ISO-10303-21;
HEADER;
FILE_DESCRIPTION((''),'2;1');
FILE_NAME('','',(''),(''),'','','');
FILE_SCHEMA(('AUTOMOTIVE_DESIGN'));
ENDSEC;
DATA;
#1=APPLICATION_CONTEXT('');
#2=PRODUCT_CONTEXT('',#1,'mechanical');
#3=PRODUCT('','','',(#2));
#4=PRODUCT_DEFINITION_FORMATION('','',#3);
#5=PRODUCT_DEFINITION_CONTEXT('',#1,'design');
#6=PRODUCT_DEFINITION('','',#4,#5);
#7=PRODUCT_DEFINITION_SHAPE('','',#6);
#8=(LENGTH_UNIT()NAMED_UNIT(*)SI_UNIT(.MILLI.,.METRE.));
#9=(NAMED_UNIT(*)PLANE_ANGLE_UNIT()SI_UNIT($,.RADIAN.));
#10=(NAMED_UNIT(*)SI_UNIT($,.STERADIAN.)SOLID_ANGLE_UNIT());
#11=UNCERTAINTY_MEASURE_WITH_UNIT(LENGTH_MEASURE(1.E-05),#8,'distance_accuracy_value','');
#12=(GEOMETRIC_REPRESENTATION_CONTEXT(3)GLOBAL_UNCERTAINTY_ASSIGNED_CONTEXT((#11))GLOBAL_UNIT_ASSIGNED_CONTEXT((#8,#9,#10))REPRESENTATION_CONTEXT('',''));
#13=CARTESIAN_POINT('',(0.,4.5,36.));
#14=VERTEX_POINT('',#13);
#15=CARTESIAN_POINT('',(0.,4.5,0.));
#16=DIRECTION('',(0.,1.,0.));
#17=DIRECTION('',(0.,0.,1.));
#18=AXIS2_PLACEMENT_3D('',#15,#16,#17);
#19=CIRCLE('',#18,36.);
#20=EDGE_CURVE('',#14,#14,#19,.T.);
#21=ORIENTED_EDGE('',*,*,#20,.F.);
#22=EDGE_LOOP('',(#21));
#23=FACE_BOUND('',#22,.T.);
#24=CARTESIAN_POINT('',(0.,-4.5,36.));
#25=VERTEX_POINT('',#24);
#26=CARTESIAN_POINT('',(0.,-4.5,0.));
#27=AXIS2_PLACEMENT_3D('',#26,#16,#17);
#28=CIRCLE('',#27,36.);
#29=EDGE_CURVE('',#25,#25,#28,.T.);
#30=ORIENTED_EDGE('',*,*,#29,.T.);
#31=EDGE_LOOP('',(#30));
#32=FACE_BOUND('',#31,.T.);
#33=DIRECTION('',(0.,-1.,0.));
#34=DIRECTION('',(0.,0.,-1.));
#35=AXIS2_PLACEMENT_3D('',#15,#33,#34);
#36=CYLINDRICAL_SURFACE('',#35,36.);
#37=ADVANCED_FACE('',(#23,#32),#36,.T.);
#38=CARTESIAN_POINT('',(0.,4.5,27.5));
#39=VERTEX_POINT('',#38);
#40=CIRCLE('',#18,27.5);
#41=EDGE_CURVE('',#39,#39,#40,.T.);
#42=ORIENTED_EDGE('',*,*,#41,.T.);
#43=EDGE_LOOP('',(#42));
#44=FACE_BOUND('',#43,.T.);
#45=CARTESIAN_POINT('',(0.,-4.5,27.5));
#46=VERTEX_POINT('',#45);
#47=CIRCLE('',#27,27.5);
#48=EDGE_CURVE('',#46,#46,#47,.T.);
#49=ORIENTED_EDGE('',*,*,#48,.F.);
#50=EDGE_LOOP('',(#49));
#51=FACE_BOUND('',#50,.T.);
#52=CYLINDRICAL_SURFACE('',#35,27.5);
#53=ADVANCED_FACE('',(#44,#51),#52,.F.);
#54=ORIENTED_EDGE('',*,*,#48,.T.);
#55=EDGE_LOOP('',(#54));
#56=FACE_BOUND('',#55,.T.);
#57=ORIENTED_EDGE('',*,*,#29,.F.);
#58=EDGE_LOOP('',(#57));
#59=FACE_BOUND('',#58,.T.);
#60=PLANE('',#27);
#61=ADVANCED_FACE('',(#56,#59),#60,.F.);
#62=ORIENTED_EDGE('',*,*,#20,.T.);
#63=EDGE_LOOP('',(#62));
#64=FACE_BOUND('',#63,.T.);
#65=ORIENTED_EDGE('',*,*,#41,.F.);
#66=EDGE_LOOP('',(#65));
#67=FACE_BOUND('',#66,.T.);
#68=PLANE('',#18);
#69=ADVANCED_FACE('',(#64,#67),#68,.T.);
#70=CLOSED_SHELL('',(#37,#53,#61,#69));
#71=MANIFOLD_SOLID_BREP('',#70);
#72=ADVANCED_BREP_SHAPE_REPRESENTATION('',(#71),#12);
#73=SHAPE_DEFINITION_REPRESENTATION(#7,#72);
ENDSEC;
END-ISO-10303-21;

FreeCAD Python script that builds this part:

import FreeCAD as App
import Part
import Sketcher

V = App.Vector
Q = App.Units.Quantity

doc = App.newDocument("Part")
params = doc.addObject("Spreadsheet::Sheet", "Params")
for row, (alias, value) in enumerate([
    ("sketch1_diameter", "72 mm"),
    ("sketch1_diameter2", "55 mm"),
    ("pad1_length", "9 mm"),
], start=1):
    params.set(f"A{row}", alias)
    params.set(f"B{row}", "=" + value)
    params.setAlias(f"B{row}", alias)

body = doc.addObject("PartDesign::Body", "Body")

# Sketch on XZ plane
sketch1 = body.newObject("Sketcher::SketchObject", "Sketch")
sketch1.AttachmentSupport = (doc.getObject("XZ_Plane"), [""])
sketch1.MapMode = "FlatFace"
sketch1.addGeometry([
    Part.Circle(V(0, 0, 0), V(0, 0, 1), 36),
    Part.Circle(V(0, 0, 0), V(0, 0, 1), 28),
], False)
sketch1.addConstraint([
    Sketcher.Constraint("Coincident", 0, 3, -1, 1),
    Sketcher.Constraint("Coincident", 1, 3, -1, 1),
    Sketcher.Constraint("Diameter", 0, Q("72 mm")),
    Sketcher.Constraint("Diameter", 1, Q("55 mm")),
])
sketch1.setExpression("Constraints[2]", "Params.sketch1_diameter")
sketch1.setExpression("Constraints[3]", "Params.sketch1_diameter2")
pad1 = body.newObject("PartDesign::Pad", "Pad")
pad1.Profile = sketch1
pad1.setExpression("Length", "Params.pad1_length")
pad1.Midplane = True

doc.recompute()
